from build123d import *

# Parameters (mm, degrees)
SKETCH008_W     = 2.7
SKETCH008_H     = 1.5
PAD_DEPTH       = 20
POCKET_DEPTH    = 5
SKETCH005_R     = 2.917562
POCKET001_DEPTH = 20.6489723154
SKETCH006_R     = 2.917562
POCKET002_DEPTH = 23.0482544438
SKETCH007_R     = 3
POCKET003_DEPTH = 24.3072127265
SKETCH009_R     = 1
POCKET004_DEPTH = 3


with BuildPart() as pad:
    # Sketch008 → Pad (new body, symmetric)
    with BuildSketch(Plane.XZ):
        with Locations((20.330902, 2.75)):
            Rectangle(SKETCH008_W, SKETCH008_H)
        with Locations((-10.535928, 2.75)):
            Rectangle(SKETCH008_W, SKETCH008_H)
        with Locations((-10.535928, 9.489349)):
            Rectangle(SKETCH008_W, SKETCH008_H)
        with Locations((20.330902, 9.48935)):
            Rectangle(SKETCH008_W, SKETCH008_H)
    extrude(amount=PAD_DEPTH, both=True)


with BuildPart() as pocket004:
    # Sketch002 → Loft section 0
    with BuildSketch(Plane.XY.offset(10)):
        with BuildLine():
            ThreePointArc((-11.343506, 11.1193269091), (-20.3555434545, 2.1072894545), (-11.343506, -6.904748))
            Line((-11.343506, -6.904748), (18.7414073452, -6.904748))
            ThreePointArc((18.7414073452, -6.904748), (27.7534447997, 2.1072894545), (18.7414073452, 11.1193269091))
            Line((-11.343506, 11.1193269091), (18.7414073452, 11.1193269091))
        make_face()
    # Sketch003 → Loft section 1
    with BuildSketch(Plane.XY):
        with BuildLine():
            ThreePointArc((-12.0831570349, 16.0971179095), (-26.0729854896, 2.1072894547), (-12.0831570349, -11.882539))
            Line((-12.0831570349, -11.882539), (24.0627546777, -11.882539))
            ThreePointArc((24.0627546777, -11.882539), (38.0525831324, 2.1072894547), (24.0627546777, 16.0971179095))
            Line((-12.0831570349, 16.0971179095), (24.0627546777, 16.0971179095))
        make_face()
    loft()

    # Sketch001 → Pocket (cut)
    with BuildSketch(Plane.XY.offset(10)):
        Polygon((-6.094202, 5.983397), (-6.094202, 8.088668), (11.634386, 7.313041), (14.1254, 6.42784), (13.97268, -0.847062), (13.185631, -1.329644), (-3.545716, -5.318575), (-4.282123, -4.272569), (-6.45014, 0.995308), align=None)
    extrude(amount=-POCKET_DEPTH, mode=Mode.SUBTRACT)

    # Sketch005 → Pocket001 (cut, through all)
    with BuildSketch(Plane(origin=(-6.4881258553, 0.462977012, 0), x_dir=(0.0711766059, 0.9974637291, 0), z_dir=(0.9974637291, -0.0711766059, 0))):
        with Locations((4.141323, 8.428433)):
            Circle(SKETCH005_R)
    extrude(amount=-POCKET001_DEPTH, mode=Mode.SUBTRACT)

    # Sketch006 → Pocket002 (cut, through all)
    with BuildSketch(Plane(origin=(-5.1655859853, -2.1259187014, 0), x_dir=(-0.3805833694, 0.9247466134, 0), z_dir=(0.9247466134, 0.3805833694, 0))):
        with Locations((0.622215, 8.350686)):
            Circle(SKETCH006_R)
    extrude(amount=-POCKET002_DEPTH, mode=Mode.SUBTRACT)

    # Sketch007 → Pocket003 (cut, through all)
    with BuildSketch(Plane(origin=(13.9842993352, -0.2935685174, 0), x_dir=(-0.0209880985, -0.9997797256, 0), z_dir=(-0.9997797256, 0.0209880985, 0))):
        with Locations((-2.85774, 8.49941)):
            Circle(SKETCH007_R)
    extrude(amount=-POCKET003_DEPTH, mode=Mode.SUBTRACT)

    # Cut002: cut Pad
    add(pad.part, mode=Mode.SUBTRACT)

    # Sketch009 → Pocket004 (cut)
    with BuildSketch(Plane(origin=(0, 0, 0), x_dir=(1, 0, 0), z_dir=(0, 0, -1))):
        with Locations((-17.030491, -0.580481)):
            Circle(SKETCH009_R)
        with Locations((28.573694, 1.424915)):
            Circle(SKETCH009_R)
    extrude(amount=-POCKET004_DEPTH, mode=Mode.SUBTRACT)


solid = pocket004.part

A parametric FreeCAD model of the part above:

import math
import FreeCAD as App
import Part
import Sketcher


def add_polygon(sketch, points):
    """Adds a closed chain of lines whose ends are joined by coincident constraints."""
    first, n = sketch.GeometryCount, len(points)
    for a, b in zip(points, points[1:] + points[:1]):
        sketch.addGeometry(Part.LineSegment(App.Vector(*a, 0), App.Vector(*b, 0)), False)
    for i in range(n):
        sketch.addConstraint(Sketcher.Constraint("Coincident", first + i, 2, first + (i + 1) % n, 1))

doc = App.newDocument("Part")
body = doc.addObject("PartDesign::Body", "Body")
body.AllowCompound = True

# Sketch on XZ plane
sketch1 = body.newObject("Sketcher::SketchObject", "Sketch")
sketch1.AttachmentSupport = (doc.getObject("XZ_Plane"), [""])
sketch1.MapMode = "FlatFace"
add_polygon(sketch1, [(19, 3.5), (19, 2), (21.7, 2), (21.7, 3.5)])  # lines 0-3
add_polygon(sketch1, [(-11.9, 3.5), (-11.9, 2), (-9.2, 2), (-9.2, 3.5)])  # lines 4-7
add_polygon(sketch1, [(-11.9, 10.2), (-11.9, 8.7), (-9.2, 8.7), (-9.2, 10.2)])  # lines 8-11
add_polygon(sketch1, [(19, 10.2), (19, 8.7), (21.7, 8.7), (21.7, 10.2)])  # lines 12-15
sketch1.addConstraint([
    Sketcher.Constraint("Vertical", 0),
    Sketcher.Constraint("Horizontal", 1),
    Sketcher.Constraint("Vertical", 2),
    Sketcher.Constraint("Horizontal", 3),
    Sketcher.Constraint("Vertical", 4),
    Sketcher.Constraint("Horizontal", 5),
    Sketcher.Constraint("Vertical", 6),
    Sketcher.Constraint("Horizontal", 7),
    Sketcher.Constraint("Vertical", 8),
    Sketcher.Constraint("Horizontal", 9),
    Sketcher.Constraint("Vertical", 10),
    Sketcher.Constraint("Horizontal", 11),
    Sketcher.Constraint("Vertical", 12),
    Sketcher.Constraint("Horizontal", 13),
    Sketcher.Constraint("Vertical", 14),
    Sketcher.Constraint("Horizontal", 15),
    Sketcher.Constraint("Horizontal", 1, 2, 4, 2),
    Sketcher.Constraint("Horizontal", 3, 2, 6, 2),
    Sketcher.Constraint("Horizontal", 9, 2, 12, 2),
    Sketcher.Constraint("Horizontal", 11, 2, 14, 2),
    Sketcher.Constraint("Vertical", 7, 2, 8, 2),
    Sketcher.Constraint("Vertical", 6, 2, 9, 2),
    Sketcher.Constraint("Vertical", 3, 2, 12, 2),
    Sketcher.Constraint("Vertical", 2, 2, 13, 2),
    Sketcher.Constraint("Equal", 3, 5),
    Sketcher.Constraint("Equal", 6, 8),
    Sketcher.Constraint("DistanceX", 1, 1, 1, 2, 2.7),
    Sketcher.Constraint("DistanceY", 0, 2, 0, 1, 1.5),
    Sketcher.Constraint("DistanceY", -1, 1, 0, 2, 2.0),
    Sketcher.Constraint("DistanceX", -1, 1, 1, 2, 21.680902),
    Sketcher.Constraint("DistanceY", -1, 1, 8, 2, 8.739349),
    Sketcher.Constraint("DistanceX", 4, 2, 0, 2, 30.86683),
])
pad1 = body.newObject("PartDesign::Pad", "Pad")
pad1.Profile = sketch1
pad1.Length = 40
pad1.Midplane = True
body2 = doc.addObject("PartDesign::Body", "Body001")

# Sketch on XY plane
sketch2 = body2.newObject("Sketcher::SketchObject", "Sketch001")
sketch2.AttachmentSupport = (doc.getObject("XY_Plane001"), [""])
sketch2.MapMode = "FlatFace"
sketch2.AttachmentOffset = App.Placement(App.Vector(0, 0, 10), App.Rotation())
sketch2.addGeometry([
    Part.ArcOfCircle(Part.Circle(App.Vector(-11, 2, 0), App.Vector(0, 0, 1), 9), math.radians(90), math.radians(270)),
    Part.LineSegment(App.Vector(-11, -7, 0), App.Vector(19, -7, 0)),
    Part.ArcOfCircle(Part.Circle(App.Vector(19, 2, 0), App.Vector(0, 0, 1), 9), math.radians(-90), math.radians(90)),
    Part.LineSegment(App.Vector(19, 11, 0), App.Vector(-11, 11, 0)),
], False)
sketch2.addConstraint([
    Sketcher.Constraint("Tangent", 0, 2, 1, 1),
    Sketcher.Constraint("Tangent", 1, 2, 2, 1),
    Sketcher.Constraint("Tangent", 2, 2, 3, 1),
    Sketcher.Constraint("Tangent", 3, 2, 0, 1),
    Sketcher.Constraint("Horizontal", 1),
    Sketcher.Constraint("Horizontal", 3),
    Sketcher.Constraint("Radius", 0, 9.012037),
    Sketcher.Constraint("DistanceX", 1, 1, 1, 2, 30.084913),
    Sketcher.Constraint("DistanceY", -1, 1, 0, 3, 2.107289),
    Sketcher.Constraint("DistanceX", 0, 3, -1, 1, 11.343506),
])

# Sketch on XY plane
sketch3 = body2.newObject("Sketcher::SketchObject", "Sketch002")
sketch3.AttachmentSupport = (doc.getObject("XY_Plane001"), [""])
sketch3.MapMode = "FlatFace"
sketch3.addGeometry([
    Part.ArcOfCircle(Part.Circle(App.Vector(-12, 2, 0), App.Vector(0, 0, 1), 14), math.radians(90), math.radians(270)),
    Part.LineSegment(App.Vector(-12, -12, 0), App.Vector(24, -12, 0)),
    Part.ArcOfCircle(Part.Circle(App.Vector(24, 2, 0), App.Vector(0, 0, 1), 14), math.radians(-90), math.radians(90)),
    Part.LineSegment(App.Vector(24, 16, 0), App.Vector(-12, 16, 0)),
], False)
sketch3.addConstraint([
    Sketcher.Constraint("Tangent", 0, 2, 1, 1),
    Sketcher.Constraint("Tangent", 1, 2, 2, 1),
    Sketcher.Constraint("Tangent", 2, 2, 3, 1),
    Sketcher.Constraint("Tangent", 3, 2, 0, 1),
    Sketcher.Constraint("Horizontal", 1),
    Sketcher.Constraint("Horizontal", 3),
    Sketcher.Constraint("Radius", 0, 13.989828),
    Sketcher.Constraint("DistanceX", 1, 1, 1, 2, 36.145912),
    Sketcher.Constraint("DistanceY", -1, 1, 0, 3, 2.107289),
    Sketcher.Constraint("DistanceX", 0, 3, -1, 1, 12.083157),
])

additiveloft = body2.newObject("PartDesign::AdditiveLoft", "AdditiveLoft")
additiveloft.Profile = sketch2
additiveloft.Sections = [sketch3]

# Sketch on XY plane
sketch4 = body2.newObject("Sketcher::SketchObject", "Sketch003")
sketch4.AttachmentSupport = (doc.getObject("XY_Plane001"), [""])
sketch4.MapMode = "FlatFace"
sketch4.AttachmentOffset = App.Placement(App.Vector(0, 0, 10), App.Rotation())
add_polygon(sketch4, [(-6.1, 8.1), (-6.1, 6), (-6.5, 1), (-4.3, -4.3), (-3.5, -5.3), (13.2, -1.3), (14, -0.8), (14.1, 6.4), (11.6, 7.3)])  # lines 0-8
sketch4.addConstraint([
    Sketcher.Constraint("Vertical", 0),
    Sketcher.Constraint("DistanceY", 0, 2, 0, 1, 2.105271),
    Sketcher.Constraint("DistanceX", -1, 1, 6, 2, 14.1254),
    Sketcher.Constraint("DistanceY", 6, 2, 7, 2, 0.885201),
    Sketcher.Constraint("Distance", 5, 0.923218),
    Sketcher.Constraint("Distance", 7, 2.643621),
    Sketcher.Constraint("DistanceX", 1, 2, -1, 1, 6.45014),
    Sketcher.Constraint("DistanceY", 2, 2, -1, 1, 4.272569),
    Sketcher.Constraint("DistanceX", -1, 1, 4, 2, 13.185631),
    Sketcher.Constraint("DistanceX", -1, 1, 5, 2, 13.97268),
    Sketcher.Constraint("DistanceY", 5, 2, -1, 1, 0.847062),
    Sketcher.Constraint("DistanceY", -1, 1, 6, 2, 6.42784),
    Sketcher.Constraint("DistanceX", 1, 2, 0, 2, 0.355938),
    Sketcher.Constraint("DistanceY", 1, 2, 0, 2, 4.988089),
    Sketcher.Constraint("DistanceX", 0, 2, 2, 2, 1.812079),
    Sketcher.Constraint("DistanceY", 3, 2, 0, 2, 11.301972),
    Sketcher.Constraint("DistanceY", 3, 2, 4, 2, 3.988931),
    Sketcher.Constraint("Distance", 3, 1.279228),
])
pocket1 = body2.newObject("PartDesign::Pocket", "Pocket")
pocket1.Profile = sketch4
pocket1.Length = 5

# Sketch on an angled plane
sketch5 = body2.newObject("Sketcher::SketchObject", "Sketch004")
sketch5.Placement = App.Placement(App.Vector(-6.488126, 0.462977, 0), App.Rotation(App.Vector(0.071176606, 0.997463729, 0), App.Vector(0, 0, 1), App.Vector(0.997463729, -0.071176606, 0), "ZXY"))
sketch5.addGeometry(Part.Circle(App.Vector(4.1, 8.4, 0), App.Vector(0, 0, 1), 2.9), False)
sketch5.addConstraint([
    Sketcher.Constraint("Diameter", 0, 5.835124),
    Sketcher.Constraint("DistanceX", -1, 1, 0, 3, 4.141323),
    Sketcher.Constraint("DistanceY", -1, 1, 0, 3, 8.428433),
])
pocket2 = body2.newObject("PartDesign::Pocket", "Pocket001")
pocket2.Profile = sketch5
pocket2.Type = "ThroughAll"

# Sketch on an angled plane
sketch6 = body2.newObject("Sketcher::SketchObject", "Sketch005")
sketch6.Placement = App.Placement(App.Vector(-5.165586, -2.125919, 0), App.Rotation(App.Vector(-0.380583369, 0.924746613, 0), App.Vector(0, 0, 0.999999999), App.Vector(0.924746613, 0.380583369, 0), "ZXY"))
sketch6.addGeometry(Part.Circle(App.Vector(0.6, 8.4, 0), App.Vector(0, 0, 1), 2.9), False)
sketch6.addConstraint([
    Sketcher.Constraint("Diameter", 0, 5.835124),
    Sketcher.Constraint("DistanceX", -1, 1, 0, 3, 0.622215),
    Sketcher.Constraint("DistanceY", -1, 1, 0, 3, 8.350686),
])
pocket3 = body2.newObject("PartDesign::Pocket", "Pocket002")
pocket3.Profile = sketch6
pocket3.Type = "ThroughAll"

# Sketch on an angled plane
sketch7 = body2.newObject("Sketcher::SketchObject", "Sketch006")
sketch7.Placement = App.Placement(App.Vector(13.984299, -0.293569, 0), App.Rotation(App.Vector(-0.020988099, -0.999779726, 0), App.Vector(0, 0, 1.000000001), App.Vector(-0.999779726, 0.020988099, 0), "ZXY"))
sketch7.addGeometry(Part.Circle(App.Vector(-2.9, 8.5, 0), App.Vector(0, 0, 1), 3), False)
sketch7.addConstraint([
    Sketcher.Constraint("Diameter", 0, 6.0),
    Sketcher.Constraint("DistanceX", 0, 3, -1, 1, 2.85774),
    Sketcher.Constraint("DistanceY", -1, 1, 0, 3, 8.49941),
])
pocket4 = body2.newObject("PartDesign::Pocket", "Pocket003")
pocket4.Profile = sketch7
pocket4.Type = "ThroughAll"
doc.recompute()

boolean = body2.newObject("PartDesign::Boolean", "Boolean")
boolean.Type = "Cut"
boolean.addObjects([body])

# Sketch on XY plane
sketch8 = body2.newObject("Sketcher::SketchObject", "Sketch007")
sketch8.AttachmentSupport = (doc.getObject("XY_Plane001"), [""])
sketch8.MapMode = "FlatFace"
sketch8.addGeometry([
    Part.Circle(App.Vector(-17, 0.6, 0), App.Vector(0, 0, 1), 1),
    Part.Circle(App.Vector(28.6, -1.4, 0), App.Vector(0, 0, 1), 1),
], False)
sketch8.addConstraint([
    Sketcher.Constraint("Equal", 0, 1),
    Sketcher.Constraint("Diameter", 0, 2.0),
    Sketcher.Constraint("DistanceX", 0, 3, -1, 1, 17.030491),
    Sketcher.Constraint("DistanceY", -1, 1, 0, 3, 0.580481),
    Sketcher.Constraint("DistanceX", -1, 1, 1, 3, 28.573694),
    Sketcher.Constraint("DistanceY", 1, 3, -1, 1, 1.424915),
])
pocket5 = body2.newObject("PartDesign::Pocket", "Pocket004")
pocket5.Profile = sketch8
pocket5.Length = 3
pocket5.Reversed = True

doc.recompute()
